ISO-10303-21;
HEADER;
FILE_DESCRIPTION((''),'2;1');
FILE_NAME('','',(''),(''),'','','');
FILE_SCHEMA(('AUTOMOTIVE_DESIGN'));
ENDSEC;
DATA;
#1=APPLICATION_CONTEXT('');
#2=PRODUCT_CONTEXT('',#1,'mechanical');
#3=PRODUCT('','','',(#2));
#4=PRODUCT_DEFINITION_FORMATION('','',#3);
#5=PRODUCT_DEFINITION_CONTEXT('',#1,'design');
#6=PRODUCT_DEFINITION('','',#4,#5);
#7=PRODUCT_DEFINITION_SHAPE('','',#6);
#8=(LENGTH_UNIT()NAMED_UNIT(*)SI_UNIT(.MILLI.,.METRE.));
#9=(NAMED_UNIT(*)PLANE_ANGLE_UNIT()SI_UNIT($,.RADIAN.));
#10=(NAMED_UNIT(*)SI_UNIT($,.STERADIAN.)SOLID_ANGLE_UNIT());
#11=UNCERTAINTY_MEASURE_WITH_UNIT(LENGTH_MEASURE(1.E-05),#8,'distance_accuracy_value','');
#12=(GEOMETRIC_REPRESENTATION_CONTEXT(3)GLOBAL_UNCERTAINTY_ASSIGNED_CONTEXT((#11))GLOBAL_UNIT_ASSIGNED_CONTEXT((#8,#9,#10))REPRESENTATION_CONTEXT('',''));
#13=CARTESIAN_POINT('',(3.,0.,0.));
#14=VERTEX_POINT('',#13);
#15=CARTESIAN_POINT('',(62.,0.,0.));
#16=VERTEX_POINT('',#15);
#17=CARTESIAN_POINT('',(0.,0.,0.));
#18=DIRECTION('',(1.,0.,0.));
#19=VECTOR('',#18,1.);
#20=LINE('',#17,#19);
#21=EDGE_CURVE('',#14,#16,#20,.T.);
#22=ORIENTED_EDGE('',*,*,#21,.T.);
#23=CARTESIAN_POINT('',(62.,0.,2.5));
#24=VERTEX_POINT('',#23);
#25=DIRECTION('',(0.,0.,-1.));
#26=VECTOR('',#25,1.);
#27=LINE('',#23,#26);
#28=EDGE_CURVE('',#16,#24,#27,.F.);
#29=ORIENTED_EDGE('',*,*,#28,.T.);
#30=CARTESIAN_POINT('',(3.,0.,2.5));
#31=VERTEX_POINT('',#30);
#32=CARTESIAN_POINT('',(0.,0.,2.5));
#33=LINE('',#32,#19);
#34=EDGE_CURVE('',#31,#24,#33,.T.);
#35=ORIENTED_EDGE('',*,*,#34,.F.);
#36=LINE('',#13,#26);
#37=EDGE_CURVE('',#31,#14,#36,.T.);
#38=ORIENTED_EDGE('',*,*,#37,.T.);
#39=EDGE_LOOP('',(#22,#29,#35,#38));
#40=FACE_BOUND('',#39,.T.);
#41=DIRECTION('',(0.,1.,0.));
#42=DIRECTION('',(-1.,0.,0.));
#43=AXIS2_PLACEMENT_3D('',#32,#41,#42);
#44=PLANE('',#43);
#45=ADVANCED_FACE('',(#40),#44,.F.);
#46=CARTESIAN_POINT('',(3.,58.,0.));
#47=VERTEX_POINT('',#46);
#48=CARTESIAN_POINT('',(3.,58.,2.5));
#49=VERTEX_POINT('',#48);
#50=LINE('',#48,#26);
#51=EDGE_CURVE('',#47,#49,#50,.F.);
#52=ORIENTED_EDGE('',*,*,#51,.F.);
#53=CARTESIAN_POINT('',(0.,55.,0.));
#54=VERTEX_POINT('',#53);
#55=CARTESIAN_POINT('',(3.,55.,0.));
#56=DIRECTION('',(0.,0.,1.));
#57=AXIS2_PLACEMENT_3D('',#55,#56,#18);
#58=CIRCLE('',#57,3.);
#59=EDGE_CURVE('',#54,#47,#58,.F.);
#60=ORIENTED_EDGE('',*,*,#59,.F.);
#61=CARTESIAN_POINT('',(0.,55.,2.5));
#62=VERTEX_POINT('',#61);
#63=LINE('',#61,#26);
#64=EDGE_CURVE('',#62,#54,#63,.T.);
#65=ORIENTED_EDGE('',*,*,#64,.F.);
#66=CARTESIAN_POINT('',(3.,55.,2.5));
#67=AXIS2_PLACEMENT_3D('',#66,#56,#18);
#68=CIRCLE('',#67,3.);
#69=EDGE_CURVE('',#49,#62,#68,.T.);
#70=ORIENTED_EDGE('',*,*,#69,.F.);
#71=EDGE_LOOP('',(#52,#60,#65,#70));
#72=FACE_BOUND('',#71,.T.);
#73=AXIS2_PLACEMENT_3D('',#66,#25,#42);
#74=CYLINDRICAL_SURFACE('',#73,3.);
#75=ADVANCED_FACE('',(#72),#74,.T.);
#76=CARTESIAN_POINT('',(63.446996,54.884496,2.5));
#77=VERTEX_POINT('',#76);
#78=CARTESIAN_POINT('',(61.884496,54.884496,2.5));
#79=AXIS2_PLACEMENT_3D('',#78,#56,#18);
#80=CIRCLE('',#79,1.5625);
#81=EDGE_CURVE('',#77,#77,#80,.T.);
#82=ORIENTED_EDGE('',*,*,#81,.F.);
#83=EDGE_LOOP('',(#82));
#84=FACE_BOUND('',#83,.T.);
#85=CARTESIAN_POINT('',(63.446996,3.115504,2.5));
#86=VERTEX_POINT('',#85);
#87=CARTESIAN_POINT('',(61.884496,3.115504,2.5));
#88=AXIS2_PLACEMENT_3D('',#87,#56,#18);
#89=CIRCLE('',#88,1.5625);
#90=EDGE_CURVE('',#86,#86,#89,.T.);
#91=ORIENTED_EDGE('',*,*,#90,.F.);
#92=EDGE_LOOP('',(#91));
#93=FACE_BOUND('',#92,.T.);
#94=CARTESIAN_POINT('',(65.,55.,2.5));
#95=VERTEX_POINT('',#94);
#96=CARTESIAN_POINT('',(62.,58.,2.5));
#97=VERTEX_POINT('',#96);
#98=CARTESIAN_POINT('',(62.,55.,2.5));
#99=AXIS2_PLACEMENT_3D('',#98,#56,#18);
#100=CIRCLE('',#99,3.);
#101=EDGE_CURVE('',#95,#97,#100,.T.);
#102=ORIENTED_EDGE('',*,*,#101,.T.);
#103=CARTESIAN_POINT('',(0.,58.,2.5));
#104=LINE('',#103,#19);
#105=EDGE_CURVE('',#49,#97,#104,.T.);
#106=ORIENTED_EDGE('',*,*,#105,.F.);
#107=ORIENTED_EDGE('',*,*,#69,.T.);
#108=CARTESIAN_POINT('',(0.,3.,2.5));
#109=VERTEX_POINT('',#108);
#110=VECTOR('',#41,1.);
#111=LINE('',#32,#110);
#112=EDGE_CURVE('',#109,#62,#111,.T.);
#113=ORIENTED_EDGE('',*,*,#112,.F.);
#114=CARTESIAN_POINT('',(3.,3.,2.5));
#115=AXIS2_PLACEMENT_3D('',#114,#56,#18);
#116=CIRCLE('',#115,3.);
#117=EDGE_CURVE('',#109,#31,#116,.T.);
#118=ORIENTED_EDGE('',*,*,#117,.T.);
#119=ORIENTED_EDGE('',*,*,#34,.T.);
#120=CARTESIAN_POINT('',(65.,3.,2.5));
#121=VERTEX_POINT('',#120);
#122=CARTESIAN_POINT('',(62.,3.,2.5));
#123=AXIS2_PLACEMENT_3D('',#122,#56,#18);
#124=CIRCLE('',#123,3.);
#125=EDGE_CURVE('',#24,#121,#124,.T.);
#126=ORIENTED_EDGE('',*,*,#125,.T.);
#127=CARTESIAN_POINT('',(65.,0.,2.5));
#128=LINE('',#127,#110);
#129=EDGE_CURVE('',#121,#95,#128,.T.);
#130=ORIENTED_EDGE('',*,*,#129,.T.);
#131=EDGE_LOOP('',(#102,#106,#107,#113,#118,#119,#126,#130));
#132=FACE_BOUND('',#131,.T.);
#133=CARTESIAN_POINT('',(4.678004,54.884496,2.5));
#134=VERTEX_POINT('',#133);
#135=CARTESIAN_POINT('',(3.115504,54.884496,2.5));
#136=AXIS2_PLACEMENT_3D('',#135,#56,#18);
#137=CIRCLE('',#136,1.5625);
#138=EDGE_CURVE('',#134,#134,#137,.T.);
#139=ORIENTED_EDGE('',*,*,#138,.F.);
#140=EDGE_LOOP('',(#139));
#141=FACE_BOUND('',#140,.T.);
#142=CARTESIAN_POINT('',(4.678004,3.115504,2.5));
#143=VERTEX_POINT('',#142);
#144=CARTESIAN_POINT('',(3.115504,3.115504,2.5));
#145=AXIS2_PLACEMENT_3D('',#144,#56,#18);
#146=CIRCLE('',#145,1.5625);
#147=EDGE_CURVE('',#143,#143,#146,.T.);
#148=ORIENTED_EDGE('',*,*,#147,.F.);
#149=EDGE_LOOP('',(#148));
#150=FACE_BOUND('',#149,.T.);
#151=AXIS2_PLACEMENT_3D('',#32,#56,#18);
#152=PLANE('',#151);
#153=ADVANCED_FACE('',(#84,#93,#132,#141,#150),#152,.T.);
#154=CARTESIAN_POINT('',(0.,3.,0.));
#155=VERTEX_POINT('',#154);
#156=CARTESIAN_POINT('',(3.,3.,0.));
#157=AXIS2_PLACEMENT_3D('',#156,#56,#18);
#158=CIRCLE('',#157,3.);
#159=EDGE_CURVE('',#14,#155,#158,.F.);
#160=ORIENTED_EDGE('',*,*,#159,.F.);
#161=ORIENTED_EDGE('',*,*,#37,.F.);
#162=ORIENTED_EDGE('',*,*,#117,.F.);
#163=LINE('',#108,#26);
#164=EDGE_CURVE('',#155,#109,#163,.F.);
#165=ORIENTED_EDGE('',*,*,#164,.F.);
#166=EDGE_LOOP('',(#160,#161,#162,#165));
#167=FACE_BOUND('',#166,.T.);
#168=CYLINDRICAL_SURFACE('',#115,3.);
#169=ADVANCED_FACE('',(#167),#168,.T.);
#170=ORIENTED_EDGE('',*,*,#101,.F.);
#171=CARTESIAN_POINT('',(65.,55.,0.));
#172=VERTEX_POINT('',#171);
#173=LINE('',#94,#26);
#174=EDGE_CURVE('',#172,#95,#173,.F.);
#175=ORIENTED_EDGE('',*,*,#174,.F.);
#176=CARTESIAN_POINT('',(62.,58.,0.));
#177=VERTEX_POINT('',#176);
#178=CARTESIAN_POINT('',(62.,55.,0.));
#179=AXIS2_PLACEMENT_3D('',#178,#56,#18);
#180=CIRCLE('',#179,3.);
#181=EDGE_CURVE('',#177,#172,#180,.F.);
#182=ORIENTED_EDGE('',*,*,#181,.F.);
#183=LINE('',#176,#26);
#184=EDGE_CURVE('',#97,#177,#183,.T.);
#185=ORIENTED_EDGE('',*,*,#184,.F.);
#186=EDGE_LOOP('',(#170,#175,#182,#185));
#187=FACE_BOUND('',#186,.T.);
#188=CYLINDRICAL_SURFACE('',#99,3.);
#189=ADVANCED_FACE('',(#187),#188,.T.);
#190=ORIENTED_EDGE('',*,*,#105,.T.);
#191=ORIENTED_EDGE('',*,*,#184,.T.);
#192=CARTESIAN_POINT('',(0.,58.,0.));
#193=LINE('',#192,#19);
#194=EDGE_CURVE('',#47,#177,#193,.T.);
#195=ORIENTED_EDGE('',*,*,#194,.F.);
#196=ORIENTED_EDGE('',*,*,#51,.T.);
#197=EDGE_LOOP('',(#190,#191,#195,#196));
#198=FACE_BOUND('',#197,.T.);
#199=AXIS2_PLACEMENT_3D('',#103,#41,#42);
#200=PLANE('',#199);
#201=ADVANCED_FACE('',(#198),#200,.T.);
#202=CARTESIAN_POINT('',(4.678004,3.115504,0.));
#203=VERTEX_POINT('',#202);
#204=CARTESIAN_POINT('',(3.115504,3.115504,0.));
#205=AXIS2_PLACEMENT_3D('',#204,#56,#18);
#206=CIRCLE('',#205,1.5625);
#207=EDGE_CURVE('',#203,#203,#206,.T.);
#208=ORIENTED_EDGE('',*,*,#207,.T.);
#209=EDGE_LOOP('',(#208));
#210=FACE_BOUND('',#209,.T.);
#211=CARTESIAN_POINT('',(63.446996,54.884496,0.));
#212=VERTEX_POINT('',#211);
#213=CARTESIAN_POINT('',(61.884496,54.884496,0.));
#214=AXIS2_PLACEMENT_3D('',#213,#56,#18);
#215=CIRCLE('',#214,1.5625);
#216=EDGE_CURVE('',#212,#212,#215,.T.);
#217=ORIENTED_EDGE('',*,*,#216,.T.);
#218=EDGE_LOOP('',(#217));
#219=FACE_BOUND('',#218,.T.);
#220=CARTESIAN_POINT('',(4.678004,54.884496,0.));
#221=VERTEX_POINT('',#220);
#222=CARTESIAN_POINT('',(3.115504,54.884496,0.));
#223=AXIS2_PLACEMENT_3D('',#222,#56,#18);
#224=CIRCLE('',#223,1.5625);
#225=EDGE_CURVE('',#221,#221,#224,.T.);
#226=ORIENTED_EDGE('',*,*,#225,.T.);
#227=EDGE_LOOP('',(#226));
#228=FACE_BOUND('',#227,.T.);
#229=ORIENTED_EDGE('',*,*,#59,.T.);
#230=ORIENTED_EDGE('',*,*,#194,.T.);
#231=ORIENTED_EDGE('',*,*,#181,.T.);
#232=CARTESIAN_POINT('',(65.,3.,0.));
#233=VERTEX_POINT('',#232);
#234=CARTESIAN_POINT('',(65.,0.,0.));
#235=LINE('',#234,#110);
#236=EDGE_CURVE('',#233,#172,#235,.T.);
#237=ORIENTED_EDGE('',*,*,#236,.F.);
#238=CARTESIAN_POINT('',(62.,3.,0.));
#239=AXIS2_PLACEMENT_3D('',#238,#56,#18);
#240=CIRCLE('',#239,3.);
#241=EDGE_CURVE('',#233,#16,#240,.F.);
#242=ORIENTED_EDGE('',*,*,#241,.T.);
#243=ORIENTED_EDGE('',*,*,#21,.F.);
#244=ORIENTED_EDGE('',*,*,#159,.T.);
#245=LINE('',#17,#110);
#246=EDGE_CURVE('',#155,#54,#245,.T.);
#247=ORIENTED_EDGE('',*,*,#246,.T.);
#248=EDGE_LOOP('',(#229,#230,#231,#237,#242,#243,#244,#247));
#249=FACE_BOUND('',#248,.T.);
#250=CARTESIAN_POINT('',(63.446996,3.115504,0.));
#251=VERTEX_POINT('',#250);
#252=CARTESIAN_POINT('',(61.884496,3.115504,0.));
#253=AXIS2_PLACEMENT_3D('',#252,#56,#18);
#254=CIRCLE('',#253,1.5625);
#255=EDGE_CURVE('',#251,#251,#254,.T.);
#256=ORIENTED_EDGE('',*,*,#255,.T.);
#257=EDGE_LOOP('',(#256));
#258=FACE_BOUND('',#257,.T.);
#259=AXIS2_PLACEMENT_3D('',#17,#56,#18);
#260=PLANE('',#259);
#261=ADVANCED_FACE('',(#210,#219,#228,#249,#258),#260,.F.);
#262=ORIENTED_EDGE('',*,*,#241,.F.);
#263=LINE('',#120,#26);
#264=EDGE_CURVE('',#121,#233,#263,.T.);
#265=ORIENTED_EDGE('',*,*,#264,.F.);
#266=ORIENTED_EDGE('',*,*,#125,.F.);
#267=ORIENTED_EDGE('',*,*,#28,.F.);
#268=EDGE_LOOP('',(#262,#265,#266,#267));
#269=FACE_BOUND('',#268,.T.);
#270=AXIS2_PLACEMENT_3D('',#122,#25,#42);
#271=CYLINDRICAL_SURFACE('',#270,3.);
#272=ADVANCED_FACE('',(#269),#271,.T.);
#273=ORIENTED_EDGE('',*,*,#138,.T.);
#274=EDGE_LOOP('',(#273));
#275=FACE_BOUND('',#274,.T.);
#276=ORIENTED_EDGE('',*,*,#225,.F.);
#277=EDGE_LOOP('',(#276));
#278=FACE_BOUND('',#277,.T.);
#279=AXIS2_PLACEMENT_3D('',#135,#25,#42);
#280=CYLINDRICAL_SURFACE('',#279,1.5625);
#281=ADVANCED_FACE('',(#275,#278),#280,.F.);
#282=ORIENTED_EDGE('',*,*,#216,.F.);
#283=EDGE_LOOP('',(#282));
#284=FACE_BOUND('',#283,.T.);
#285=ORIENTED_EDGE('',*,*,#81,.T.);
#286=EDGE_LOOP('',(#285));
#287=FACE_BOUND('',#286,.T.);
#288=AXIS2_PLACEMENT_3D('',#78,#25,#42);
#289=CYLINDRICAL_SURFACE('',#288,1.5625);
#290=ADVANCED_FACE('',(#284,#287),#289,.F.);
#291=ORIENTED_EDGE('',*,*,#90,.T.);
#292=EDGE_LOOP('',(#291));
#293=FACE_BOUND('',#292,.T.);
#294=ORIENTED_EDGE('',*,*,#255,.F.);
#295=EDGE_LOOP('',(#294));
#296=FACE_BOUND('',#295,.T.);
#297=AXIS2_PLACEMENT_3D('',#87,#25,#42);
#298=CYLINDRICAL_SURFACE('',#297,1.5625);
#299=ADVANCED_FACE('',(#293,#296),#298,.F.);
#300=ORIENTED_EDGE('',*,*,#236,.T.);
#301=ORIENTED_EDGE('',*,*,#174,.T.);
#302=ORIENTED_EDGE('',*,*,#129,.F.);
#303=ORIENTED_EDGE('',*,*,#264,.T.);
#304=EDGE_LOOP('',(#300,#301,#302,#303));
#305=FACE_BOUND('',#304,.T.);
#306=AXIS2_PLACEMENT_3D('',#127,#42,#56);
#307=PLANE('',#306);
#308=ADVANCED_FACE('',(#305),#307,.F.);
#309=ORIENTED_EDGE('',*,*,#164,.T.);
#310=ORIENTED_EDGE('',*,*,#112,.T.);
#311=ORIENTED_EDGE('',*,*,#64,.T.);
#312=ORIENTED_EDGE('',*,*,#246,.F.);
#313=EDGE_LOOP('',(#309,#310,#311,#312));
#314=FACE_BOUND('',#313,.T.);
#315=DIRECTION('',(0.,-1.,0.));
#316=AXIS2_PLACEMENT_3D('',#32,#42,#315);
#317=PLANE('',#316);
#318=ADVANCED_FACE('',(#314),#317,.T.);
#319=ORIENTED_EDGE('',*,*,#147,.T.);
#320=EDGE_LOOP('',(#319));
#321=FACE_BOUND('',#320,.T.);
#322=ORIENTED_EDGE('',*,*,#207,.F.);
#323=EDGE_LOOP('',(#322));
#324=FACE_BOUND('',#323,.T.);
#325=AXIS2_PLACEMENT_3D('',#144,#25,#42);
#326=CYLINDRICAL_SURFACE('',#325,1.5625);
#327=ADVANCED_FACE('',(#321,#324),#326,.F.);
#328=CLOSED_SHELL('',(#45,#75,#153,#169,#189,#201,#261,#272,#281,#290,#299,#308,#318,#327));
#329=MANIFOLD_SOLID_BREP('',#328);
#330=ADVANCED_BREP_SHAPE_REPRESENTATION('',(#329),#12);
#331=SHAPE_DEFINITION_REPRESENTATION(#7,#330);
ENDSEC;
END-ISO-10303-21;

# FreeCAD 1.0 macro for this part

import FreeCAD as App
import Part
import Sketcher

V = App.Vector


def edges_at(feature, points):
    """Names of the edges that pass closest to the given points."""
    edges = feature.Shape.Edges
    near = lambda p: min(range(len(edges)), key=lambda i: edges[i].distToShape(Part.Vertex(*p))[0])
    return sorted({f"Edge{near(p) + 1}" for p in points})


def add_polygon(sketch, points):
    """Adds a closed chain of lines whose ends are joined by coincident constraints."""
    first, n = sketch.GeometryCount, len(points)
    for a, b in zip(points, points[1:] + points[:1]):
        sketch.addGeometry(Part.LineSegment(App.Vector(*a, 0), App.Vector(*b, 0)), False)
    for i in range(n):
        sketch.addConstraint(Sketcher.Constraint("Coincident", first + i, 2, first + (i + 1) % n, 1))

doc = App.newDocument("Part")
body = doc.addObject("PartDesign::Body", "Body")

sketch1 = body.newObject("Sketcher::SketchObject", "Sketch")
sketch1.AttachmentSupport = (doc.getObject("XY_Plane"), [""])
sketch1.MapMode = "FlatFace"
add_polygon(sketch1, [(0, 58), (0, 0), (65, 0), (65, 58)])
sketch1.addConstraint([
    Sketcher.Constraint("Vertical", 0),
    Sketcher.Constraint("Horizontal", 1),
    Sketcher.Constraint("Vertical", 2),
    Sketcher.Constraint("Horizontal", 3),
    Sketcher.Constraint("Coincident", 0, 2, -1, 1),
    Sketcher.Constraint("DistanceX", 1, 1, 1, 2, 65.0),
    Sketcher.Constraint("DistanceY", 0, 2, 0, 1, 58.0),
])
pad1 = body.newObject("PartDesign::Pad", "Pad")
pad1.Profile = sketch1
pad1.Length = 2.5

sketch2 = body.newObject("Sketcher::SketchObject", "Sketch001")
sketch2.AttachmentSupport = (doc.getObject("XY_Plane"), [""])
sketch2.MapMode = "FlatFace"
sketch2.addGeometry([
    Part.Circle(V(3.1, 54.9, 0), V(0, 0, 1), 1.6),
    Part.Circle(V(61.9, 54.9, 0), V(0, 0, 1), 1.6),
    Part.Circle(V(61.9, 3.1, 0), V(0, 0, 1), 1.6),
    Part.Circle(V(3.1, 3.1, 0), V(0, 0, 1), 1.6),
], False)
sketch2.addConstraint([
    Sketcher.Constraint("Equal", 0, 1),
    Sketcher.Constraint("Equal", 1, 2),
    Sketcher.Constraint("Equal", 2, 3),
    Sketcher.Constraint("Horizontal", 0, 3, 1, 3),
    Sketcher.Constraint("Horizontal", 2, 3, 3, 3),
    Sketcher.Constraint("Vertical", 1, 3, 2, 3),
    Sketcher.Constraint("Vertical", 0, 3, 3, 3),
    Sketcher.Constraint("Diameter", 0, 3.125),
    Sketcher.Constraint("DistanceX", -1, 1, 0, 3, 3.115504),
    Sketcher.Constraint("DistanceY", -1, 1, 0, 3, 54.884496),
    Sketcher.Constraint("DistanceX", -1, 1, 1, 3, 61.884496),
    Sketcher.Constraint("DistanceY", -1, 1, 2, 3, 3.115504),
])
pocket1 = body.newObject("PartDesign::Pocket", "Pocket")
pocket1.Profile = sketch2
pocket1.Length = 2.5
pocket1.Reversed = True
doc.recompute()

fillet = body.newObject("PartDesign::Fillet", "Fillet")
fillet.Base = (pocket1, edges_at(pocket1, [
    (0, 0, 1.25),
    (0, 58, 1.25),
    (65, 58, 1.25),
    (65, 0, 1.25),
]))
fillet.Radius = 3

doc.recompute()
